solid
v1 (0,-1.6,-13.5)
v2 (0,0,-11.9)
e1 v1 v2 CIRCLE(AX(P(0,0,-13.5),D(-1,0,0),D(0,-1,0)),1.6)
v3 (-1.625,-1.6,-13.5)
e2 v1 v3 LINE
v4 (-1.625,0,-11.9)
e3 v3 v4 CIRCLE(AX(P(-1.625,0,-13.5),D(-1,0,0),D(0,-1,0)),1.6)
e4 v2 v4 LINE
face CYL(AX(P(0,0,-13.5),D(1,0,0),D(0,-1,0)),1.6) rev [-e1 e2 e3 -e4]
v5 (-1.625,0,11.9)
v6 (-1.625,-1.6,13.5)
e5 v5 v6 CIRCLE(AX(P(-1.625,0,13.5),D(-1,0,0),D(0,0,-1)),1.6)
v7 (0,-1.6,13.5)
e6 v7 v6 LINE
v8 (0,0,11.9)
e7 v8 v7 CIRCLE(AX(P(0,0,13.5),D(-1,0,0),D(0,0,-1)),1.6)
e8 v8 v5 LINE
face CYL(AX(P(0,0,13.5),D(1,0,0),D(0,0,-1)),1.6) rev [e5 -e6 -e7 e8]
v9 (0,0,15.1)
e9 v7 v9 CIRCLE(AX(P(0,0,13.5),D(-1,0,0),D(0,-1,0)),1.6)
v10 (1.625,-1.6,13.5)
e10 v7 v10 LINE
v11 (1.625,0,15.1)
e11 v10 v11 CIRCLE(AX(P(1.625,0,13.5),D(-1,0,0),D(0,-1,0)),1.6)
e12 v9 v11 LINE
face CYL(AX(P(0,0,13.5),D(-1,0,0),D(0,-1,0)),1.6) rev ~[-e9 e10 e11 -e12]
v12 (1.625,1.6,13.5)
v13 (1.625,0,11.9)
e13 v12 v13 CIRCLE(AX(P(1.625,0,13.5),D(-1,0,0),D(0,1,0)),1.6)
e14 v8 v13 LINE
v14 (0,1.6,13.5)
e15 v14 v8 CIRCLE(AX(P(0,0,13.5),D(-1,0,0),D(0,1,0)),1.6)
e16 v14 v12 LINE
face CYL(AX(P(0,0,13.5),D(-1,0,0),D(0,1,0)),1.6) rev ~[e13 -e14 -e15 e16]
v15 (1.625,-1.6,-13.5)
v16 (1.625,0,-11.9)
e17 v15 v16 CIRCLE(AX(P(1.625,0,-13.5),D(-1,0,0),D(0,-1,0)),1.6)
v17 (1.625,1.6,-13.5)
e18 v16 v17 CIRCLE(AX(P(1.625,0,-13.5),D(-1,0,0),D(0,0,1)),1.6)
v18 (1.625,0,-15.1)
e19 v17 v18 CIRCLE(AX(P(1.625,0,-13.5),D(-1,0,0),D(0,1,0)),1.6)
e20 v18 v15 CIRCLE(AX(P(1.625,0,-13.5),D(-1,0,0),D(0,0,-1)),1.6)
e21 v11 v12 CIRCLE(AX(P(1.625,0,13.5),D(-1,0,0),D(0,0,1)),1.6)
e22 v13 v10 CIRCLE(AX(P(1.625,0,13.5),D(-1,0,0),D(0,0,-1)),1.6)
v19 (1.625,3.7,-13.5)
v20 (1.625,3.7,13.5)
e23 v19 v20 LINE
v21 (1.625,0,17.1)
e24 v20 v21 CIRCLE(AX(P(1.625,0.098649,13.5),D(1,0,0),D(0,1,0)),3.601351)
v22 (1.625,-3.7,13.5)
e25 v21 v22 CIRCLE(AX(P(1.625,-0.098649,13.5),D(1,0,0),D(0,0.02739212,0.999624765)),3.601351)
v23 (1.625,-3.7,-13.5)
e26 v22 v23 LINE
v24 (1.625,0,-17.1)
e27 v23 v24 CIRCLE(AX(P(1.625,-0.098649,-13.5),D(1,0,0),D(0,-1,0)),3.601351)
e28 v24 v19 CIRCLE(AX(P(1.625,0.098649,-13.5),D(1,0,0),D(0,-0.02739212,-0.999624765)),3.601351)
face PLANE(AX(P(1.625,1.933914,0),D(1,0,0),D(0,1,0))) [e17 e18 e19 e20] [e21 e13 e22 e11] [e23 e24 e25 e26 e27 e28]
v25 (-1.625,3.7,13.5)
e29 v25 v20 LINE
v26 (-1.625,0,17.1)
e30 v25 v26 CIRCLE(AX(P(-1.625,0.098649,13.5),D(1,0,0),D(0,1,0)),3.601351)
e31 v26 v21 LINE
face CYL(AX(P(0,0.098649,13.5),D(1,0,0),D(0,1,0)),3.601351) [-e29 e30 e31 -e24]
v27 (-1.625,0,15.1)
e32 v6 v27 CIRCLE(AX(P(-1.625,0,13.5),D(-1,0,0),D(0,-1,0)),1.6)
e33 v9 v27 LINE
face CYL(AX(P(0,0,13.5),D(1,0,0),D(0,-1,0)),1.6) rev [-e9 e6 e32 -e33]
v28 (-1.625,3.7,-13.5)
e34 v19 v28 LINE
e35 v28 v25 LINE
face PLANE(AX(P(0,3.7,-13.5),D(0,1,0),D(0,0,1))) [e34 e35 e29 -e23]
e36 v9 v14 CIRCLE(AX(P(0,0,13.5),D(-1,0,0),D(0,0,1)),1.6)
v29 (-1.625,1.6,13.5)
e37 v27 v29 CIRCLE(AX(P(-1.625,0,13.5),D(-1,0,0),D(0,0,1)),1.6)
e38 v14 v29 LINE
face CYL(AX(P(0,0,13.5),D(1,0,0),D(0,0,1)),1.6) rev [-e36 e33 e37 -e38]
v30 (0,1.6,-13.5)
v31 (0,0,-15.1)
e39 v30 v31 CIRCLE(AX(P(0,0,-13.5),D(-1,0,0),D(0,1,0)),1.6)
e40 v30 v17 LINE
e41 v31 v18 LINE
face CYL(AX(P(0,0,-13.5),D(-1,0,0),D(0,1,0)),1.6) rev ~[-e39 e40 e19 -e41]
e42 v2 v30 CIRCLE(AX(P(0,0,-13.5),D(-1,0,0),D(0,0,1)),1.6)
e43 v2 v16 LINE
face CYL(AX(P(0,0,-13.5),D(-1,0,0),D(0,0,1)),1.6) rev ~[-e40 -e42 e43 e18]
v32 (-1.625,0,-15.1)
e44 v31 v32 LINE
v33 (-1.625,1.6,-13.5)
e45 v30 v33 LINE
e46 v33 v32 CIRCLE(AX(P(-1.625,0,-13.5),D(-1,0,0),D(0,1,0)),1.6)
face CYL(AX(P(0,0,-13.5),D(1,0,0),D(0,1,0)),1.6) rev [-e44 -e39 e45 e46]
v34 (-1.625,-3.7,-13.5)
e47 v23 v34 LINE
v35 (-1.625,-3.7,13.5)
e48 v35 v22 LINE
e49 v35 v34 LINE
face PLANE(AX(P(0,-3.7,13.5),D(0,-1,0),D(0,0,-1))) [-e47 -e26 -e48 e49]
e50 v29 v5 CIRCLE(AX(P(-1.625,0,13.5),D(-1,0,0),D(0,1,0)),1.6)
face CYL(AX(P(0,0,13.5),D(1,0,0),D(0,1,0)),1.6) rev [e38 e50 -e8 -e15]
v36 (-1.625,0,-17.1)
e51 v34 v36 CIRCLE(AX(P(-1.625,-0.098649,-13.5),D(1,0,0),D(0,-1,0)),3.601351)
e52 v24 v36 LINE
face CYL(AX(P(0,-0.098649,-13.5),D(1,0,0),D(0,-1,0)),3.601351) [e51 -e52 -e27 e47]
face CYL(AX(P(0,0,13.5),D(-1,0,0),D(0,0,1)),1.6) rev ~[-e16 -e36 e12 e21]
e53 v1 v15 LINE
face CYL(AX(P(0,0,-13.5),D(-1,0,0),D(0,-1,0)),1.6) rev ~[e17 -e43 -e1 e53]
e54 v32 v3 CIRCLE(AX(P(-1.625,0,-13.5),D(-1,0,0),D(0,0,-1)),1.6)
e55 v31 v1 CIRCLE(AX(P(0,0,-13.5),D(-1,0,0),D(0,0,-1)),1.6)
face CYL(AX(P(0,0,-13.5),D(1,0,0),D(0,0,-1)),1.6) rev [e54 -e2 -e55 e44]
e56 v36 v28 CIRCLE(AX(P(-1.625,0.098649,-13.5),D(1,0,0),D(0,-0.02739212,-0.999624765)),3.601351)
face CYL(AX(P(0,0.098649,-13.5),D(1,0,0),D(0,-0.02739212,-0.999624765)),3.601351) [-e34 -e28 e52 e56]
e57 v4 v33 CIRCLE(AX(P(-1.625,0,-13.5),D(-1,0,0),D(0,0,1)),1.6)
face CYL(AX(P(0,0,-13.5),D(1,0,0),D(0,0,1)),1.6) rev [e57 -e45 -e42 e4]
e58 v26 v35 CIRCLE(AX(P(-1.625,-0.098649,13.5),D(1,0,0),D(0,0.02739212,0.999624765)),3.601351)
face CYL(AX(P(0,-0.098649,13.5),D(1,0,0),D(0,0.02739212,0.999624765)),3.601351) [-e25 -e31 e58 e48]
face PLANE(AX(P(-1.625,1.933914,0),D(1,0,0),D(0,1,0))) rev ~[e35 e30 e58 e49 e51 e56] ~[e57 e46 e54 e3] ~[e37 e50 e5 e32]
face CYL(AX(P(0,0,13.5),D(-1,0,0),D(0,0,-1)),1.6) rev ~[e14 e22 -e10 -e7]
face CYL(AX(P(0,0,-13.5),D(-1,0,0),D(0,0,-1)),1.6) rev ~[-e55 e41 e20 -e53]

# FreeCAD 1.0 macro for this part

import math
import FreeCAD as App
import Part
import Sketcher
from FreeCAD import Vector

doc = App.newDocument("Part")
body = doc.addObject("PartDesign::Body", "Body")

sketch1 = doc.addObject("Sketcher::SketchObject", "Sketch")
body.addObject(sketch1)
sketch1.AttachmentSupport = (doc.YZ_Plane, [""])
sketch1.MapMode = "FlatFace"
sketch1.addGeometry([
    Part.LineSegment(Vector(3.7, -13.5, 0), Vector(3.7, 13.5, 0)),
    Part.ArcOfCircle(Part.Circle(Vector(0.1, 13.5, 0), Vector(0, 0, 1), 3.6), math.radians(0), math.radians(92)),
    Part.ArcOfCircle(Part.Circle(Vector(-0.1, 13.5, 0), Vector(0, 0, 1), 3.6), math.radians(88), math.radians(180)),
    Part.LineSegment(Vector(-3.7, 13.5, 0), Vector(-3.7, -13.5, 0)),
    Part.ArcOfCircle(Part.Circle(Vector(-0.1, -13.5, 0), Vector(0, 0, 1), 3.6), math.radians(180), math.radians(272)),
    Part.ArcOfCircle(Part.Circle(Vector(0.1, -13.5, 0), Vector(0, 0, 1), 3.6), math.radians(-92), math.radians(0)),
    Part.ArcOfCircle(Part.Circle(Vector(0, -13.5, 0), Vector(0, 0, 1), 1.6), math.radians(90), math.radians(180)),
    Part.ArcOfCircle(Part.Circle(Vector(0, -13.5, 0), Vector(0, 0, 1), 1.6), math.radians(0), math.radians(90)),
    Part.ArcOfCircle(Part.Circle(Vector(0, -13.5, 0), Vector(0, 0, 1), 1.6), math.radians(-90), math.radians(0)),
    Part.ArcOfCircle(Part.Circle(Vector(0, -13.5, 0), Vector(0, 0, 1), 1.6), math.radians(180), math.radians(270)),
    Part.ArcOfCircle(Part.Circle(Vector(0, 13.5, 0), Vector(0, 0, 1), 1.6), math.radians(-90), math.radians(0)),
    Part.ArcOfCircle(Part.Circle(Vector(0, 13.5, 0), Vector(0, 0, 1), 1.6), math.radians(180), math.radians(270)),
    Part.ArcOfCircle(Part.Circle(Vector(0, 13.5, 0), Vector(0, 0, 1), 1.6), math.radians(90), math.radians(180)),
    Part.ArcOfCircle(Part.Circle(Vector(0, 13.5, 0), Vector(0, 0, 1), 1.6), math.radians(0), math.radians(90)),
], False)
sketch1.addConstraint([
    Sketcher.Constraint("Tangent", 0, 2, 1, 1),
    Sketcher.Constraint("Coincident", 1, 2, 2, 1),
    Sketcher.Constraint("Tangent", 2, 2, 3, 1),
    Sketcher.Constraint("Tangent", 3, 2, 4, 1),
    Sketcher.Constraint("Coincident", 4, 2, 5, 1),
    Sketcher.Constraint("Tangent", 5, 2, 0, 1),
    Sketcher.Constraint("Tangent", 6, 1, 7, 2),
    Sketcher.Constraint("Tangent", 7, 1, 8, 2),
    Sketcher.Constraint("Tangent", 8, 1, 9, 2),
    Sketcher.Constraint("Tangent", 9, 1, 6, 2),
    Sketcher.Constraint("Tangent", 10, 1, 11, 2),
    Sketcher.Constraint("Tangent", 11, 1, 12, 2),
    Sketcher.Constraint("Tangent", 12, 1, 13, 2),
    Sketcher.Constraint("Tangent", 13, 1, 10, 2),
    Sketcher.Constraint("Vertical", 0),
    Sketcher.Constraint("Vertical", 3),
    Sketcher.Constraint("Equal", 1, 2),
    Sketcher.Constraint("Equal", 2, 4),
    Sketcher.Constraint("Equal", 4, 5),
    Sketcher.Constraint("Equal", 6, 7),
    Sketcher.Constraint("Equal", 9, 10),
    Sketcher.Constraint("Equal", 10, 11),
    Sketcher.Constraint("Symmetric", 1, 3, 4, 3, -1, 1),
    Sketcher.Constraint("Symmetric", 6, 3, 10, 3, -1, 1),
    Sketcher.Constraint("Symmetric", 7, 1, 9, 1, -2),
    Sketcher.Constraint("Symmetric", 1, 2, 4, 2, -1),
    Sketcher.Constraint("PointOnObject", 6, 1, -2),
    Sketcher.Constraint("PointOnObject", 8, 1, -2),
    Sketcher.Constraint("PointOnObject", 10, 1, -2),
    Sketcher.Constraint("PointOnObject", 12, 1, -2),
    Sketcher.Constraint("Horizontal", 5, 3, 6, 3),
    Sketcher.Constraint("Horizontal", 5, 2, 7, 1),
    Sketcher.Constraint("Horizontal", 2, 2, 11, 1),
    Sketcher.Constraint("Horizontal", 11, 1, 13, 1),
    Sketcher.Constraint("Radius", 6, 1.6),
    Sketcher.Constraint("DistanceY", 0, 1, 0, 2, 27.0),
    Sketcher.Constraint("DistanceX", -1, 1, 0, 2, 3.7),
    Sketcher.Constraint("DistanceY", -1, 1, 1, 2, 17.1),
])
pad1 = doc.addObject("PartDesign::Pad", "Pad")
body.addObject(pad1)
pad1.Profile = sketch1
pad1.Length = 3.25
pad1.Midplane = True

doc.recompute()
